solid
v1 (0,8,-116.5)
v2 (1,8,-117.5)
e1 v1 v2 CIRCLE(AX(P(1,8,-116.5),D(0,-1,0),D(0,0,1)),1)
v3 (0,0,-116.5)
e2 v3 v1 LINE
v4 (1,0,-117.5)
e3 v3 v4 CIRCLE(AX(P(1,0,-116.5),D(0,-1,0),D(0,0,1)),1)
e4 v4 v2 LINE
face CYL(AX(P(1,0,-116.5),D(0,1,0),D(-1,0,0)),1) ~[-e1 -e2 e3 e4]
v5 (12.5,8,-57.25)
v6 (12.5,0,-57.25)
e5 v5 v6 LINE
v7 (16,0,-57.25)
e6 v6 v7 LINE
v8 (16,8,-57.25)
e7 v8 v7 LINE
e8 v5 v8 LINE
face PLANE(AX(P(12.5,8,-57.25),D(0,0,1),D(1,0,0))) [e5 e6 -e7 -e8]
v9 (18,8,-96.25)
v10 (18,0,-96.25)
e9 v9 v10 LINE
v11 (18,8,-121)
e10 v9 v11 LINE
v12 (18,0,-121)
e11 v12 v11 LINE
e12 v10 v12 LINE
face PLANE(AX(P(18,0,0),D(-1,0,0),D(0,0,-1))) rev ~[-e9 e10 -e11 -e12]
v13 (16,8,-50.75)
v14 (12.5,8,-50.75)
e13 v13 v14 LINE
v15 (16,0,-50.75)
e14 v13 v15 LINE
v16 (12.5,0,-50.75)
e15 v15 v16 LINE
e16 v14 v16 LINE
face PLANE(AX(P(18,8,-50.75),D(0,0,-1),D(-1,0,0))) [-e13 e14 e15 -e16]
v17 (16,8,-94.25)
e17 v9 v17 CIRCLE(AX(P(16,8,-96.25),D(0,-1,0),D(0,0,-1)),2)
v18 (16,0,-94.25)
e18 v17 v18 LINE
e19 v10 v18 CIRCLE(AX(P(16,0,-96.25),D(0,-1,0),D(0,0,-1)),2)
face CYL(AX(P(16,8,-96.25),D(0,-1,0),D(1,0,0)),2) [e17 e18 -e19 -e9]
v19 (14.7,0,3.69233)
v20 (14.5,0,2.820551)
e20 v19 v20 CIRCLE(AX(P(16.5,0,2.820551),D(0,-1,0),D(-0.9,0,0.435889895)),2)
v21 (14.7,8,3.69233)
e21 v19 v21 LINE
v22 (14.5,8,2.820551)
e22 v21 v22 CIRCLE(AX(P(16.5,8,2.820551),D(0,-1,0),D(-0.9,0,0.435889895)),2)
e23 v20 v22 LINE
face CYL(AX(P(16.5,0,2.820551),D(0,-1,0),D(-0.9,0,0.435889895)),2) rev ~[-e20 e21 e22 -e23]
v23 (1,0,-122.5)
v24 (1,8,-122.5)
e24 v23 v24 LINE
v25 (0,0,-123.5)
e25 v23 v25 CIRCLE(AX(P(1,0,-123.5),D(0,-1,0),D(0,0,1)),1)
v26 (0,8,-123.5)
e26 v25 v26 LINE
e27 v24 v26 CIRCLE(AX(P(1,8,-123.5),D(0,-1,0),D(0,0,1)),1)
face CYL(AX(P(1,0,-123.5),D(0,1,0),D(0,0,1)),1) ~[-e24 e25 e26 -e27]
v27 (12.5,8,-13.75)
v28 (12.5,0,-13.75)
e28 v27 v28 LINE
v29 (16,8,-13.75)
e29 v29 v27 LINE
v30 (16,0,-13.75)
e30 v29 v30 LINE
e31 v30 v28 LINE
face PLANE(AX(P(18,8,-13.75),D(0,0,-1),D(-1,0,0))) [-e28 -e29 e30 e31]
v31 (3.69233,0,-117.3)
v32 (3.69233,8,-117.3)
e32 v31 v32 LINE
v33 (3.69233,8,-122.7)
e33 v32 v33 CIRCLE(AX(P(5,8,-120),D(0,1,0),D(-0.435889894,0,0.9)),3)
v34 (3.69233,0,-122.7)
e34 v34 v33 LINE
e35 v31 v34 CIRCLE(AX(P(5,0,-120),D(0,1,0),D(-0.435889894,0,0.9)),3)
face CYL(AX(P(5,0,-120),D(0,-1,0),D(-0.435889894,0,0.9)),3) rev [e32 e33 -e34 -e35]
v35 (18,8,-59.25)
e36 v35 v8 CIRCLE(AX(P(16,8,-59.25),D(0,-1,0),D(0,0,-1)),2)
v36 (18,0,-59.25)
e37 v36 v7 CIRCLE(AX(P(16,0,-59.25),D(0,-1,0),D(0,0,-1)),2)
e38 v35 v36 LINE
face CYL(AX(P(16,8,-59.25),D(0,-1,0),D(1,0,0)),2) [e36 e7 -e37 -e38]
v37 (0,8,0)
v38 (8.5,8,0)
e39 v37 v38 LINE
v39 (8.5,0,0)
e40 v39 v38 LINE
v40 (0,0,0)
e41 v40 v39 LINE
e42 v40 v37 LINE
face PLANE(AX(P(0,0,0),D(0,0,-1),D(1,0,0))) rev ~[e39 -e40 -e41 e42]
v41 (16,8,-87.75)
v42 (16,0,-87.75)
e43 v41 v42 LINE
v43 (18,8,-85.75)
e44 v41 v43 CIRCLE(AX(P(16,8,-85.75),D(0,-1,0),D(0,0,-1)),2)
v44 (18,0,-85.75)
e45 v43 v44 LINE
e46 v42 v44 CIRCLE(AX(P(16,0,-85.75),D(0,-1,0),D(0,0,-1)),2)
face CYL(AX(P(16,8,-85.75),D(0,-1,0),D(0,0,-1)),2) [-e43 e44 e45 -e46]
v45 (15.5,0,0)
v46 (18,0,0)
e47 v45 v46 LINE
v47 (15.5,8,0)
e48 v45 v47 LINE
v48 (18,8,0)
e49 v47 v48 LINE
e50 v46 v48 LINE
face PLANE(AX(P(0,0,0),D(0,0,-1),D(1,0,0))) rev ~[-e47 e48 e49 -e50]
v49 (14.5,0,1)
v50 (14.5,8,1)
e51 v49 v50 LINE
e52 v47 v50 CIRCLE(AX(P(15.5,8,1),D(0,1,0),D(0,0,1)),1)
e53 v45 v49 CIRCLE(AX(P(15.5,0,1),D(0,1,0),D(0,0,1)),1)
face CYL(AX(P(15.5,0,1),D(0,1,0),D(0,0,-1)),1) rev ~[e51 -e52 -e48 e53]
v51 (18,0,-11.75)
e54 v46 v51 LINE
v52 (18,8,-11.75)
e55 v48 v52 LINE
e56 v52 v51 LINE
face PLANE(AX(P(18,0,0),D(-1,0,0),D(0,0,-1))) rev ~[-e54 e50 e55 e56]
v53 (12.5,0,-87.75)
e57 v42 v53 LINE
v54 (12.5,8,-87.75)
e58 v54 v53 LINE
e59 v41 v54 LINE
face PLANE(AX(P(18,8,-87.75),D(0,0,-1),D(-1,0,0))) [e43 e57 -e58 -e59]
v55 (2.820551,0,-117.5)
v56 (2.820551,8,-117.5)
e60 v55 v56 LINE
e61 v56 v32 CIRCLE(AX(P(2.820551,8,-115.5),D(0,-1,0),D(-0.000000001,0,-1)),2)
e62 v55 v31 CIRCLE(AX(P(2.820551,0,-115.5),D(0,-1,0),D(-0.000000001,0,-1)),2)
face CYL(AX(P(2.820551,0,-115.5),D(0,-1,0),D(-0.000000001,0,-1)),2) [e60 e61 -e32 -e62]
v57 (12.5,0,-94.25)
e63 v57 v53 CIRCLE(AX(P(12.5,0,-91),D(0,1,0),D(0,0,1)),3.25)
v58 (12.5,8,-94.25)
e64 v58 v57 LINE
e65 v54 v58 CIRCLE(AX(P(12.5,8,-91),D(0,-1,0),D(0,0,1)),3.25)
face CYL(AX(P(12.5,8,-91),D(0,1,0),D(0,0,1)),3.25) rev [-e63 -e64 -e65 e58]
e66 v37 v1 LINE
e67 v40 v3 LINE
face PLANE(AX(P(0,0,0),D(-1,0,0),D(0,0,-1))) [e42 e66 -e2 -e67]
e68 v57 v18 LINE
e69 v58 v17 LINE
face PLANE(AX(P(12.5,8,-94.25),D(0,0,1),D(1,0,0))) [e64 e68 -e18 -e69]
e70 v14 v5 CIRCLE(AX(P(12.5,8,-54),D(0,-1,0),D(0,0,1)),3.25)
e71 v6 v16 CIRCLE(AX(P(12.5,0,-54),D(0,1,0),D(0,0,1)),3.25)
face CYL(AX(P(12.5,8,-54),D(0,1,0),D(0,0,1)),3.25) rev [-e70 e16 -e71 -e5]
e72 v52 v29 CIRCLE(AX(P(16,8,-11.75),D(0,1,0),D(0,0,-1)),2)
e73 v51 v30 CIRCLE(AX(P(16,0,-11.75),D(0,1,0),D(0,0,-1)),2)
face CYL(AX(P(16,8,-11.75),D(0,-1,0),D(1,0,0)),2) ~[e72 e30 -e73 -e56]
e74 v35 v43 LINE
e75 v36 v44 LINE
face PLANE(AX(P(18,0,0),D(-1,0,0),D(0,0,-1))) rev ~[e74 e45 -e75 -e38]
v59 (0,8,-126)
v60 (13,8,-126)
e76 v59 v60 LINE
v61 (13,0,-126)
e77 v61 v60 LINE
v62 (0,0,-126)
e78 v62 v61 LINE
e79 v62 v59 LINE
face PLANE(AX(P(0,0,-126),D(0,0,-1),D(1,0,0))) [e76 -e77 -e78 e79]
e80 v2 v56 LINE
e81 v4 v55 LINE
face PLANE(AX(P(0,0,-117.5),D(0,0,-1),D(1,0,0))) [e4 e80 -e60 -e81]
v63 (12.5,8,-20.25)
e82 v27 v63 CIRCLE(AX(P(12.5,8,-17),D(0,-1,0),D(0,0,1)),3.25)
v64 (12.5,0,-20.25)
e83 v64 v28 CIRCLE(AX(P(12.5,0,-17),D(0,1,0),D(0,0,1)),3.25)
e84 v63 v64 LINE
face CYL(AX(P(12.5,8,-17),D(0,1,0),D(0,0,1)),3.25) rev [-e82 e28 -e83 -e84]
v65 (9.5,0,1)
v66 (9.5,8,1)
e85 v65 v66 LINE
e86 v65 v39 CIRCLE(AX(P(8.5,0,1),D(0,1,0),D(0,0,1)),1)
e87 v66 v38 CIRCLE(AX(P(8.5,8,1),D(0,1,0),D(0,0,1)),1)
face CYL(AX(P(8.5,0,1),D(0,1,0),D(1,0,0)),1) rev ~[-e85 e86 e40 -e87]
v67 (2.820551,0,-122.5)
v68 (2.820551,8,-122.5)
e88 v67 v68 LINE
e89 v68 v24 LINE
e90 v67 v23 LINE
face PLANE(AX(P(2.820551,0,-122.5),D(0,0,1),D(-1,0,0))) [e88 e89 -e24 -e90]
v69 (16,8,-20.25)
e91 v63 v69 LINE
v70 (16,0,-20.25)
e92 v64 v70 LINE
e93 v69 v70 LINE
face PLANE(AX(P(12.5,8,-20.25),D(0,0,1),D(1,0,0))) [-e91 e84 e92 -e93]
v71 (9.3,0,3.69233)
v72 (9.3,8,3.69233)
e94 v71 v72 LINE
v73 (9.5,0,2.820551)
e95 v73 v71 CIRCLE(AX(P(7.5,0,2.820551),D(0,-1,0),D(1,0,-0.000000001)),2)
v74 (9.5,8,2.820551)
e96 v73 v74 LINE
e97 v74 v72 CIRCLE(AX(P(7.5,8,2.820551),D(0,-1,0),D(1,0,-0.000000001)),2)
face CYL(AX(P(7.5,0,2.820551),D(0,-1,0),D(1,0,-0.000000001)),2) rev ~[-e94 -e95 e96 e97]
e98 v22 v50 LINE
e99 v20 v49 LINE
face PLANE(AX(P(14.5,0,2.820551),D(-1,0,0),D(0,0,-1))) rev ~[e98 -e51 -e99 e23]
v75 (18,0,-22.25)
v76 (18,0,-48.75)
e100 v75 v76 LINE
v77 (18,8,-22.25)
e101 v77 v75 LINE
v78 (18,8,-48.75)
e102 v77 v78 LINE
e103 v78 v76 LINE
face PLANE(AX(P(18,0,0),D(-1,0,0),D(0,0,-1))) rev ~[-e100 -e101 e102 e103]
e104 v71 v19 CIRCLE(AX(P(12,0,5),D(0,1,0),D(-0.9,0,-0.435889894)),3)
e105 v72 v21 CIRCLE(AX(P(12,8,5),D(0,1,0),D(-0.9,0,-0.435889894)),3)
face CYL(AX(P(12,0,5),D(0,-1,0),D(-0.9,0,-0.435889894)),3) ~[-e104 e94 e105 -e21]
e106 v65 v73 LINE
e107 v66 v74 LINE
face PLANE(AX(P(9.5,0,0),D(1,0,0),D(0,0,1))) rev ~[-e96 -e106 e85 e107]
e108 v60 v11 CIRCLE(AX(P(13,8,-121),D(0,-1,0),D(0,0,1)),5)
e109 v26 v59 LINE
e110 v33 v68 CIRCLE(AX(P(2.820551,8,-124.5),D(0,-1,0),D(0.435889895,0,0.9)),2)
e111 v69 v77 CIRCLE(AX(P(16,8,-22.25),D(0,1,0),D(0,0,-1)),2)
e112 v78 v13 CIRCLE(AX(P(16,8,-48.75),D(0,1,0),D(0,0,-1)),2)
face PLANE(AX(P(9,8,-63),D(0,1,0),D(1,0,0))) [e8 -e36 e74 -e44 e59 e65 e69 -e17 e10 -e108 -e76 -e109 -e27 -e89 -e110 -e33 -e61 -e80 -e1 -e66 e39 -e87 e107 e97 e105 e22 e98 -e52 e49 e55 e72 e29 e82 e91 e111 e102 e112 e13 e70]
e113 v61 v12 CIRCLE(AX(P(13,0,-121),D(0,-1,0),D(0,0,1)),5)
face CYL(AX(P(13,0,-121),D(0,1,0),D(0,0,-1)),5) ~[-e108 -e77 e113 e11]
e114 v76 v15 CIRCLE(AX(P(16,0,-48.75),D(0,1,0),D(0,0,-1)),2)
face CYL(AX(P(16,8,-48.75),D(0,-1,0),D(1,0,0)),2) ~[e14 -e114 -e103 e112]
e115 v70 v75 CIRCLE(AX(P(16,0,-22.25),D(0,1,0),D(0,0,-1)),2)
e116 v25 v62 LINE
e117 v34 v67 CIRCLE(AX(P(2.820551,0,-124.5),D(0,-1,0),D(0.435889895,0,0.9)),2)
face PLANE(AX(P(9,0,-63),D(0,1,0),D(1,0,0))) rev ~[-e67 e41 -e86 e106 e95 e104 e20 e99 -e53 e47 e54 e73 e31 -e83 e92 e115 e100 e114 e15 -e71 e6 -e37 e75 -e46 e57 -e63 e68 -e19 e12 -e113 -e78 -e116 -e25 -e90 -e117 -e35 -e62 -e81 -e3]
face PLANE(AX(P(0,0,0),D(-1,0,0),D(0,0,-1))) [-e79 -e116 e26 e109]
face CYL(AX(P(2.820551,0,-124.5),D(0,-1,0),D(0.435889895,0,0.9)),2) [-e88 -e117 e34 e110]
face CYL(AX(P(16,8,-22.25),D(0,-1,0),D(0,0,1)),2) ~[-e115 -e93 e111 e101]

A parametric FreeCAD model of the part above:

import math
import FreeCAD as App
import Part
import Sketcher
from FreeCAD import Vector
Q = App.Units.Quantity


def edges_at(feature, points):
    """Names of the edges that pass closest to the given points."""
    edges = feature.Shape.Edges
    near = lambda p: min(range(len(edges)), key=lambda i: edges[i].distToShape(Part.Vertex(*p))[0])
    return sorted({f"Edge{near(p) + 1}" for p in points})

doc = App.newDocument("Part")
body = doc.addObject("PartDesign::Body", "Body")

sketch1 = body.newObject("Sketcher::SketchObject", "Sketch")
sketch1.AttachmentSupport = (doc.getObject("XZ_Plane"), [""])
sketch1.MapMode = "FlatFace"
sketch1.addGeometry([
    Part.LineSegment(Vector(0, -126, 0), Vector(0, 0, 0)),
    Part.LineSegment(Vector(0, 0, 0), Vector(18, 0, 0)),
    Part.LineSegment(Vector(18, 0, 0), Vector(18, -126, 0)),
    Part.LineSegment(Vector(18, -126, 0), Vector(0, -126, 0)),
], False)
sketch1.addConstraint([
    Sketcher.Constraint("Coincident", 0, 2, 1, 1),
    Sketcher.Constraint("Coincident", 1, 2, 2, 1),
    Sketcher.Constraint("Coincident", 2, 2, 3, 1),
    Sketcher.Constraint("Coincident", 3, 2, 0, 1),
    Sketcher.Constraint("Vertical", 0),
    Sketcher.Constraint("Horizontal", 1),
    Sketcher.Constraint("Vertical", 2),
    Sketcher.Constraint("Horizontal", 3),
    Sketcher.Constraint("Coincident", 0, 2, -1, 1),
    Sketcher.Constraint("DistanceX", 1, 1, 1, 2, Q("18 mm")),
    Sketcher.Constraint("DistanceY", 0, 1, 0, 2, Q("126 mm")),
])
pad1 = body.newObject("PartDesign::Pad", "Pad")
pad1.Profile = sketch1
pad1.Length = 8
pad1.Reversed = True

sketch2 = body.newObject("Sketcher::SketchObject", "Sketch001")
sketch2.AttachmentSupport = (doc.getObject("XZ_Plane"), [""])
sketch2.MapMode = "FlatFace"
sketch2.AttachmentOffset = App.Placement(Vector(0, 0, -8), App.Rotation())
sketch2.addGeometry([
    Part.LineSegment(Vector(18, -94.2, 0), Vector(12.5, -94.2, 0)),
    Part.ArcOfCircle(Part.Circle(Vector(12.5, -91, 0), Vector(0, 0, 1), 3.2), math.radians(90), math.radians(270)),
    Part.LineSegment(Vector(12.5, -87.8, 0), Vector(18, -87.8, 0)),
    Part.ArcOfCircle(Part.Circle(Vector(18, -91, 0), Vector(0, 0, 1), 3.2), math.radians(-90), math.radians(90)),
    Part.LineSegment(Vector(18, -57.2, 0), Vector(12.5, -57.2, 0)),
    Part.ArcOfCircle(Part.Circle(Vector(12.5, -54, 0), Vector(0, 0, 1), 3.2), math.radians(90), math.radians(270)),
    Part.LineSegment(Vector(12.5, -50.8, 0), Vector(18, -50.8, 0)),
    Part.ArcOfCircle(Part.Circle(Vector(18, -54, 0), Vector(0, 0, 1), 3.2), math.radians(-90), math.radians(90)),
    Part.LineSegment(Vector(18, -20.2, 0), Vector(12.5, -20.2, 0)),
    Part.ArcOfCircle(Part.Circle(Vector(12.5, -17, 0), Vector(0, 0, 1), 3.2), math.radians(90), math.radians(270)),
    Part.LineSegment(Vector(12.5, -13.8, 0), Vector(18, -13.8, 0)),
    Part.ArcOfCircle(Part.Circle(Vector(18, -17, 0), Vector(0, 0, 1), 3.2), math.radians(-90), math.radians(90)),
], False)
sketch2.addConstraint([
    Sketcher.Constraint("Tangent", 0, 2, 1, 2),
    Sketcher.Constraint("Tangent", 1, 1, 2, 1),
    Sketcher.Constraint("Tangent", 2, 2, 3, 2),
    Sketcher.Constraint("Tangent", 3, 1, 0, 1),
    Sketcher.Constraint("Tangent", 4, 2, 5, 2),
    Sketcher.Constraint("Tangent", 5, 1, 6, 1),
    Sketcher.Constraint("Tangent", 6, 2, 7, 2),
    Sketcher.Constraint("Tangent", 7, 1, 4, 1),
    Sketcher.Constraint("Tangent", 8, 2, 9, 2),
    Sketcher.Constraint("Tangent", 9, 1, 10, 1),
    Sketcher.Constraint("Tangent", 10, 2, 11, 2),
    Sketcher.Constraint("Tangent", 11, 1, 8, 1),
    Sketcher.Constraint("Horizontal", 0),
    Sketcher.Constraint("Horizontal", 2),
    Sketcher.Constraint("Horizontal", 4),
    Sketcher.Constraint("Horizontal", 6),
    Sketcher.Constraint("Horizontal", 8),
    Sketcher.Constraint("Horizontal", 10),
    Sketcher.Constraint("Equal", 3, 5),
    Sketcher.Constraint("Equal", 7, 9),
    Sketcher.Constraint("Vertical", 1, 3, 5, 3),
    Sketcher.Constraint("Vertical", 3, 3, 7, 3),
    Sketcher.Constraint("Vertical", 5, 3, 9, 3),
    Sketcher.Constraint("Vertical", 7, 3, 11, 3),
    Sketcher.Constraint("Radius", 1, Q("3.25 mm")),
    Sketcher.Constraint("DistanceX", 0, 2, 0, 1, Q("5.5 mm")),
    Sketcher.Constraint("DistanceY", 1, 3, -1, 1, Q("91 mm")),
    Sketcher.Constraint("DistanceX", -1, 1, 3, 3, Q("18 mm")),
    Sketcher.Constraint("DistanceY", 5, 3, -1, 1, Q("54 mm")),
    Sketcher.Constraint("DistanceY", 9, 3, -1, 1, Q("17 mm")),
])
pocket1 = body.newObject("PartDesign::Pocket", "Pocket")
pocket1.Profile = sketch2
pocket1.Length = 10
pocket1.Reversed = True
doc.recompute()

fillet = body.newObject("PartDesign::Fillet", "Fillet")
fillet.Base = (pocket1, edges_at(pocket1, [(18, 4, -126)]))
fillet.Radius = 5
doc.recompute()

fillet2 = body.newObject("PartDesign::Fillet", "Fillet001")
fillet2.Base = (fillet, edges_at(fillet, [
    (18, 4, -94.25),
    (18, 4, -87.75),
    (18, 4, -57.25),
    (18, 4, -50.75),
    (18, 4, -20.25),
    (18, 4, -13.75),
]))
fillet2.Radius = 2

sketch3 = body.newObject("Sketcher::SketchObject", "Sketch002")
sketch3.AttachmentSupport = (doc.getObject("XZ_Plane"), [""])
sketch3.MapMode = "FlatFace"
sketch3.addGeometry([
    Part.LineSegment(Vector(9.5, 2.8, 0), Vector(9.5, 0, 0)),
    Part.LineSegment(Vector(9.5, 0, 0), Vector(14.5, 0, 0)),
    Part.LineSegment(Vector(14.5, 0, 0), Vector(14.5, 2.8, 0)),
    Part.ArcOfCircle(Part.Circle(Vector(16.5, 2.8, 0), Vector(0, 0, 1), 2), math.radians(154), math.radians(180)),
    Part.ArcOfCircle(Part.Circle(Vector(12, 5, 0), Vector(0, 0, 1), 3), math.radians(-26), math.radians(206)),
    Part.ArcOfCircle(Part.Circle(Vector(7.5, 2.8, 0), Vector(0, 0, 1), 2), math.radians(0), math.radians(26)),
], False)
sketch3.addConstraint([
    Sketcher.Constraint("Coincident", 0, 2, 1, 1),
    Sketcher.Constraint("Coincident", 1, 2, 2, 1),
    Sketcher.Constraint("Tangent", 2, 2, 3, 2),
    Sketcher.Constraint("Tangent", 3, 1, 4, 1),
    Sketcher.Constraint("Tangent", 4, 2, 5, 2),
    Sketcher.Constraint("Tangent", 5, 1, 0, 1),
    Sketcher.Constraint("Vertical", 0),
    Sketcher.Constraint("Horizontal", 1),
    Sketcher.Constraint("Vertical", 2),
    Sketcher.Constraint("Equal", 3, 5),
    Sketcher.Constraint("PointOnObject", 0, 2, -1),
    Sketcher.Constraint("Horizontal", 3, 3, 5, 3),
    Sketcher.Constraint("Radius", 3, Q("2 mm")),
    Sketcher.Constraint("Radius", 4, Q("3 mm")),
    Sketcher.Constraint("DistanceX", 1, 1, 1, 2, Q("5 mm")),
    Sketcher.Constraint("DistanceX", -1, 1, 4, 3, Q("12 mm")),
    Sketcher.Constraint("DistanceY", -1, 1, 4, 3, Q("5 mm")),
])
pad2 = body.newObject("PartDesign::Pad", "Pad001")
pad2.Profile = sketch3
pad2.Length = 8
pad2.Reversed = True

sketch4 = body.newObject("Sketcher::SketchObject", "Sketch003")
sketch4.AttachmentSupport = (doc.getObject("XZ_Plane"), [""])
sketch4.MapMode = "FlatFace"
sketch4.addGeometry([
    Part.LineSegment(Vector(2.8, -117.5, 0), Vector(0, -117.5, 0)),
    Part.LineSegment(Vector(0, -117.5, 0), Vector(0, -122.5, 0)),
    Part.LineSegment(Vector(0, -122.5, 0), Vector(2.8, -122.5, 0)),
    Part.ArcOfCircle(Part.Circle(Vector(2.8, -124.5, 0), Vector(0, 0, 1), 2), math.radians(64), math.radians(90)),
    Part.ArcOfCircle(Part.Circle(Vector(5, -120, 0), Vector(0, 0, 1), 3), math.radians(-116), math.radians(116)),
    Part.ArcOfCircle(Part.Circle(Vector(2.8, -115.5, 0), Vector(0, 0, 1), 2), math.radians(-90), math.radians(-64)),
], False)
sketch4.addConstraint([
    Sketcher.Constraint("Coincident", 0, 2, 1, 1),
    Sketcher.Constraint("Coincident", 1, 2, 2, 1),
    Sketcher.Constraint("Tangent", 2, 2, 3, 2),
    Sketcher.Constraint("Tangent", 3, 1, 4, 1),
    Sketcher.Constraint("Tangent", 4, 2, 5, 2),
    Sketcher.Constraint("Tangent", 5, 1, 0, 1),
    Sketcher.Constraint("Horizontal", 0),
    Sketcher.Constraint("Vertical", 1),
    Sketcher.Constraint("Horizontal", 2),
    Sketcher.Constraint("Equal", 3, 5),
    Sketcher.Constraint("PointOnObject", 0, 2, -2),
    Sketcher.Constraint("Vertical", 3, 3, 5, 3),
    Sketcher.Constraint("Radius", 3, Q("2 mm")),
    Sketcher.Constraint("Radius", 4, Q("3 mm")),
    Sketcher.Constraint("DistanceY", 1, 2, 1, 1, Q("5 mm")),
    Sketcher.Constraint("DistanceX", -1, 1, 4, 3, Q("5 mm")),
    Sketcher.Constraint("DistanceY", 4, 3, -1, 1, Q("120 mm")),
])
pocket2 = body.newObject("PartDesign::Pocket", "Pocket001")
pocket2.Profile = sketch4
pocket2.Length = 8
doc.recompute()

fillet3 = body.newObject("PartDesign::Fillet", "Fillet002")
fillet3.Base = (pocket2, edges_at(pocket2, [(9.5, 4, 0), (14.5, 4, 0)]))
fillet3.Radius = 1
doc.recompute()

fillet4 = body.newObject("PartDesign::Fillet", "Fillet003")
fillet4.Base = (fillet3, edges_at(fillet3, [(0, 4, -122.5), (0, 4, -117.5)]))
fillet4.Radius = 1

doc.recompute()
